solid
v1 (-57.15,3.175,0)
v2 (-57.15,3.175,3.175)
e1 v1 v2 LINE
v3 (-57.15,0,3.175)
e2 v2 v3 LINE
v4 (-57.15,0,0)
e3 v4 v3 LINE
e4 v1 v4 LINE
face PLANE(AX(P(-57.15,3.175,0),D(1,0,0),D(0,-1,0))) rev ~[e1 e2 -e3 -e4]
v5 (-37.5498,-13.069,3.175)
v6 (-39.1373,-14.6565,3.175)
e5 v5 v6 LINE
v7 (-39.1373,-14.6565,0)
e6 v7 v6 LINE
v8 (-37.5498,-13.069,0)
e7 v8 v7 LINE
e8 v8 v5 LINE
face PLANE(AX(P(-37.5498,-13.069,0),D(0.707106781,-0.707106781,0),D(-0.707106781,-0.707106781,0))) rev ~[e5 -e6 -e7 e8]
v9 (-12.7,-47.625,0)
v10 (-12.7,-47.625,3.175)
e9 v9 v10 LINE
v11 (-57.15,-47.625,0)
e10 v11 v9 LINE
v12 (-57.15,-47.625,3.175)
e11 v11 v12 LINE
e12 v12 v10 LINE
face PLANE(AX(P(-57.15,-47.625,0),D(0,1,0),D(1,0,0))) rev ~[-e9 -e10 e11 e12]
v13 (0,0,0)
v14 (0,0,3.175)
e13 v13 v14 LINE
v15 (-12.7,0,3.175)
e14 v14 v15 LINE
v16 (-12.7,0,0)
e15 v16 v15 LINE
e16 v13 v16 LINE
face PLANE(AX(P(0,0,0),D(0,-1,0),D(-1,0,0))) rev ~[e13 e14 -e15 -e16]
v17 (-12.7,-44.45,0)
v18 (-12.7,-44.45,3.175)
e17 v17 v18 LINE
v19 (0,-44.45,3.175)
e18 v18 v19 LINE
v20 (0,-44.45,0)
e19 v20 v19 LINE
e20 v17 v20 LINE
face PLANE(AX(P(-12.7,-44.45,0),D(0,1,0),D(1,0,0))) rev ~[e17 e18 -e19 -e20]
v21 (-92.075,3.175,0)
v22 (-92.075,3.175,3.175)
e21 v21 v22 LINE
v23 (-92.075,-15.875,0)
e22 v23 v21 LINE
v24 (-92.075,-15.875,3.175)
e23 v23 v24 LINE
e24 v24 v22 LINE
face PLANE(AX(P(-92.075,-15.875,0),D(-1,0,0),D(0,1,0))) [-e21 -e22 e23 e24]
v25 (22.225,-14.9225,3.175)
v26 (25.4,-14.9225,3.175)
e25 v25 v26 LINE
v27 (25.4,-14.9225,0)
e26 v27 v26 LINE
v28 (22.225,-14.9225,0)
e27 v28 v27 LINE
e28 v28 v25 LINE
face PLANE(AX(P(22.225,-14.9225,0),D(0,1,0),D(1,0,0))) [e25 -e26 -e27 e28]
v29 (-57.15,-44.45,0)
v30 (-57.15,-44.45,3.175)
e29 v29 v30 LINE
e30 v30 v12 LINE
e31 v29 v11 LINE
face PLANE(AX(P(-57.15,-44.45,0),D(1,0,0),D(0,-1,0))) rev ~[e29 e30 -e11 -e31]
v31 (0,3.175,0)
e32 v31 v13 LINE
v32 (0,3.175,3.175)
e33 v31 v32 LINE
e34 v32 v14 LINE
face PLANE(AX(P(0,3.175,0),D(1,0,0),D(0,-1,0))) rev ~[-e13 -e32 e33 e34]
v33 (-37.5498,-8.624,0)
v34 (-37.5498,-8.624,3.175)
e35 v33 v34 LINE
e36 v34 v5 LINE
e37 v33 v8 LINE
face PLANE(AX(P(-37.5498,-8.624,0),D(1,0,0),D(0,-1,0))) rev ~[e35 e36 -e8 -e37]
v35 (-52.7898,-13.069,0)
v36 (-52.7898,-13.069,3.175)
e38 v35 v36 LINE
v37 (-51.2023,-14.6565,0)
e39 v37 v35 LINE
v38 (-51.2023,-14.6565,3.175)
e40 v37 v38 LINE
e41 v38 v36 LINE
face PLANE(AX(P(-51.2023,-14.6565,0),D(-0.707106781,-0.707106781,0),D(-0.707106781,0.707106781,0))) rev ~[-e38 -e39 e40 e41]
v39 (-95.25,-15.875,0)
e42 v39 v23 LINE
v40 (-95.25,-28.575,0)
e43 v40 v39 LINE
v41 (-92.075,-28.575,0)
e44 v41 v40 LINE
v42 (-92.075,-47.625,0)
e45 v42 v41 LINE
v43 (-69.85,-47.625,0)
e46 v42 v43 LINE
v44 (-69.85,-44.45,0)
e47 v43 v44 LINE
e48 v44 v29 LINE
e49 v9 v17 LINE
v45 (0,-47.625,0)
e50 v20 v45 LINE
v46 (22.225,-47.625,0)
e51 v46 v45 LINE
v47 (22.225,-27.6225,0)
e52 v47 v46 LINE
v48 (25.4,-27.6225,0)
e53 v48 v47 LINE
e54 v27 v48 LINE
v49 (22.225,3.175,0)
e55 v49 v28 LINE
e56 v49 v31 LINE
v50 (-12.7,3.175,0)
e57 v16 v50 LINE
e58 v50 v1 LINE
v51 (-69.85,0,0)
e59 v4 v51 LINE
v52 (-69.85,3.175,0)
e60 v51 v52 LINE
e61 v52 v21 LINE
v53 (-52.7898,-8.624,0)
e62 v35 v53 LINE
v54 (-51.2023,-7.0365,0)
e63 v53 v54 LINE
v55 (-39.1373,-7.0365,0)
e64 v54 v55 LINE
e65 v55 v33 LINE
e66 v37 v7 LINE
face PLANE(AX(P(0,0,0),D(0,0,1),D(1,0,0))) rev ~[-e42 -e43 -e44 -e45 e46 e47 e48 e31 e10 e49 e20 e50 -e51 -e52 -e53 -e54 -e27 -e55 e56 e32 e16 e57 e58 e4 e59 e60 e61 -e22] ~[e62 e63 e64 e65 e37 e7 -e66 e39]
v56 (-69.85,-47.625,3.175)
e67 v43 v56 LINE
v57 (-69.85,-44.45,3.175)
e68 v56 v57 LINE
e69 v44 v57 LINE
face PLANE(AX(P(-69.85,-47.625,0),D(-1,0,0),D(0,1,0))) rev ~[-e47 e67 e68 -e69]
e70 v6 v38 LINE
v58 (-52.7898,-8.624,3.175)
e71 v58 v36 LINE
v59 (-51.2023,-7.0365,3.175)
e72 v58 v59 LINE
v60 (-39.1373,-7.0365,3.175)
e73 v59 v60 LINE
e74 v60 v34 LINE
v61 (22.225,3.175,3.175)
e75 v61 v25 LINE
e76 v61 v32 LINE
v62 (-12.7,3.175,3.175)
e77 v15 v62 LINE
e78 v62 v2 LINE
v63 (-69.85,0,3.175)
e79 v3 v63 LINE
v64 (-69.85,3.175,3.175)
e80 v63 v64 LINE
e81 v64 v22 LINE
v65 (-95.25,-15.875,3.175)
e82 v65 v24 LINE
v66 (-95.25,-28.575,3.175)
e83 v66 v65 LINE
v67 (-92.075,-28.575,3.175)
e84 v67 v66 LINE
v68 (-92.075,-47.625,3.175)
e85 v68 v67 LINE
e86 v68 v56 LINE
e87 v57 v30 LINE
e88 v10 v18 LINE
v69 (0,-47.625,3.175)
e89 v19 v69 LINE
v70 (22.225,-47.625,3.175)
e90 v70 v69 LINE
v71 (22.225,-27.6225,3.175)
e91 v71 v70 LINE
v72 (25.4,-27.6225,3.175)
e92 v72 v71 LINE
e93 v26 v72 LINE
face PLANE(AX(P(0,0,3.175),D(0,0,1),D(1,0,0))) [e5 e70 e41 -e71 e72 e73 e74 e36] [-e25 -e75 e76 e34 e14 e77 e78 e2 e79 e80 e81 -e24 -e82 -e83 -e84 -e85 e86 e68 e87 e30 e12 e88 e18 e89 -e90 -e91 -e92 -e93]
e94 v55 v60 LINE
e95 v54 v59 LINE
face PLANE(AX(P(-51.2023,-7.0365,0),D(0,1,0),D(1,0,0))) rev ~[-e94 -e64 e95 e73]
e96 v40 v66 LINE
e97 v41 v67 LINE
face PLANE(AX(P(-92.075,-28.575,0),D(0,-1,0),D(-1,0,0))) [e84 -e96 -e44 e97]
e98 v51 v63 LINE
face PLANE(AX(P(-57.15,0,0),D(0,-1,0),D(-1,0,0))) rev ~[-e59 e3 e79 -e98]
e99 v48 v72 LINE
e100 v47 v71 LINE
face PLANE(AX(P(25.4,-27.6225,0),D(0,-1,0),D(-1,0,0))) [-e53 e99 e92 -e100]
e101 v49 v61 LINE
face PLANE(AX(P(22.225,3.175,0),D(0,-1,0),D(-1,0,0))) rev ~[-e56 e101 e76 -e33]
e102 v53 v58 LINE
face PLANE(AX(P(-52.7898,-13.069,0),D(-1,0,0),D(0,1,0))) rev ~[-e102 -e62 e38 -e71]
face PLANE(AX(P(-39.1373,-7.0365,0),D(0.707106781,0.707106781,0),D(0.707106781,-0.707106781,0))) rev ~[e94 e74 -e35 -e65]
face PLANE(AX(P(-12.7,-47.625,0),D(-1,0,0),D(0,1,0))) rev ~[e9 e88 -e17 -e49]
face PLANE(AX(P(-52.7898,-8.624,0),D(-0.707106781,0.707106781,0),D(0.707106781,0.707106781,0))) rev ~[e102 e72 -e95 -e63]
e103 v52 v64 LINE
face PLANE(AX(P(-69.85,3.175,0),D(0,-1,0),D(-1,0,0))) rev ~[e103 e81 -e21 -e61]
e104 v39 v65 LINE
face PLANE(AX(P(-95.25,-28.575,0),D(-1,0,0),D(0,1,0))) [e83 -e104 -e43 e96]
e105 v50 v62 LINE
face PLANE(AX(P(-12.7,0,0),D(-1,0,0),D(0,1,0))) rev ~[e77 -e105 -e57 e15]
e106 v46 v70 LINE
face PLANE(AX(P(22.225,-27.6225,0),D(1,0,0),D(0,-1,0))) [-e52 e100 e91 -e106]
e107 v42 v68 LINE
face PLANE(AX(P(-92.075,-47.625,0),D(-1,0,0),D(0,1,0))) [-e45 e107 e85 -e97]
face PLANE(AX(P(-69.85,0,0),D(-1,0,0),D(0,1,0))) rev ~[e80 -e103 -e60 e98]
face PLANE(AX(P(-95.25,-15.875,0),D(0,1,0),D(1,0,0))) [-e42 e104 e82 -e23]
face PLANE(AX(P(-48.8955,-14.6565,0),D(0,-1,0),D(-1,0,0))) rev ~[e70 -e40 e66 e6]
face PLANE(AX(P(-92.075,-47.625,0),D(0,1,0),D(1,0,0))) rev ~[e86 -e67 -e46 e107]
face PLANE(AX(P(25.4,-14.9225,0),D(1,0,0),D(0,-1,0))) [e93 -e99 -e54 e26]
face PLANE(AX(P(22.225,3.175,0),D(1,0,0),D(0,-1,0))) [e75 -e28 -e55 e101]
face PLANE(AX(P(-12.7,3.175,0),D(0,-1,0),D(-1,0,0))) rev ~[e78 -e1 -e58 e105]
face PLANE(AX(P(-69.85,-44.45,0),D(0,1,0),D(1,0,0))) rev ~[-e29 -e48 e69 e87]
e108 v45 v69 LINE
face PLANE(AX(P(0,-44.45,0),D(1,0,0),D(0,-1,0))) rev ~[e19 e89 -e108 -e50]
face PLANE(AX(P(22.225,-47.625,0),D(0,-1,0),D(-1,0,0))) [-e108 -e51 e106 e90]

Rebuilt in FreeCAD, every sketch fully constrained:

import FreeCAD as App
import Part
import Sketcher
from FreeCAD import Vector
Q = App.Units.Quantity


def add_polygon(sketch, points):
    """Adds a closed chain of lines whose ends are joined by coincident constraints."""
    first, n = sketch.GeometryCount, len(points)
    for a, b in zip(points, points[1:] + points[:1]):
        sketch.addGeometry(Part.LineSegment(App.Vector(*a, 0), App.Vector(*b, 0)), False)
    for i in range(n):
        sketch.addConstraint(Sketcher.Constraint("Coincident", first + i, 2, first + (i + 1) % n, 1))

doc = App.newDocument("Part")
params = doc.addObject("Spreadsheet::Sheet", "Params")
for row, (alias, value) in enumerate([
    ("sketch1_width", "0.5 in"),
    ("sketch1_width2", "1.75 in"),
    ("sketch1_width3", "0.125 in"),
    ("sketch1_width4", "0.475 in"),
    ("pad1_length", "0.125 in"),
], start=1):
    params.set(f"A{row}", alias)
    params.set(f"B{row}", "=" + value)
    params.setAlias(f"B{row}", alias)

body = doc.addObject("PartDesign::Body", "Body")

sketch1 = body.newObject("Sketcher::SketchObject", "Sketch")
sketch1.AttachmentSupport = (doc.getObject("XY_Plane"), [""])
sketch1.MapMode = "FlatFace"
add_polygon(sketch1, [(-92.075, -15.875), (-95.25, -15.875), (-95.25, -28.575), (-92.075, -28.575), (-92.075, -47.625), (-69.85, -47.625), (-69.85, -44.45), (-57.15, -44.45), (-57.15, -47.625), (-12.7, -47.625), (-12.7, -44.45), (0, -44.45), (0, -47.625), (22.225, -47.625), (22.225, -27.6225), (25.4, -27.6225), (25.4, -14.9225), (22.225, -14.9225), (22.225, 3.175), (0, 3.175), (0, 0), (-12.7, 0), (-12.7, 3.175), (-57.15, 3.175), (-57.15, 0), (-69.85, 0), (-69.85, 3.175), (-92.075, 3.175)])
add_polygon(sketch1, [(-52.7898, -13.069), (-52.7898, -8.624), (-51.2023, -7.0365), (-39.1373, -7.0365), (-37.5498, -8.624), (-37.5498, -13.069), (-39.1373, -14.6565), (-51.2023, -14.6565)])
sketch1.addConstraint([
    Sketcher.Constraint("Horizontal", 0),
    Sketcher.Constraint("Vertical", 1),
    Sketcher.Constraint("Horizontal", 2),
    Sketcher.Constraint("Vertical", 3),
    Sketcher.Constraint("Horizontal", 4),
    Sketcher.Constraint("Vertical", 5),
    Sketcher.Constraint("Horizontal", 6),
    Sketcher.Constraint("Vertical", 7),
    Sketcher.Constraint("Horizontal", 8),
    Sketcher.Constraint("Vertical", 9),
    Sketcher.Constraint("Horizontal", 10),
    Sketcher.Constraint("Vertical", 11),
    Sketcher.Constraint("Horizontal", 12),
    Sketcher.Constraint("Vertical", 13),
    Sketcher.Constraint("Horizontal", 14),
    Sketcher.Constraint("Vertical", 15),
    Sketcher.Constraint("Horizontal", 16),
    Sketcher.Constraint("Vertical", 17),
    Sketcher.Constraint("Horizontal", 18),
    Sketcher.Constraint("Vertical", 19),
    Sketcher.Constraint("Horizontal", 20),
    Sketcher.Constraint("Vertical", 21),
    Sketcher.Constraint("Horizontal", 22),
    Sketcher.Constraint("Vertical", 23),
    Sketcher.Constraint("Horizontal", 24),
    Sketcher.Constraint("Vertical", 25),
    Sketcher.Constraint("Horizontal", 26),
    Sketcher.Constraint("Vertical", 27),
    Sketcher.Constraint("Vertical", 28),
    Sketcher.Constraint("Horizontal", 30),
    Sketcher.Constraint("Vertical", 32),
    Sketcher.Constraint("Horizontal", 34),
    Sketcher.Constraint("Coincident", 19, 2, -1, 1),
    Sketcher.Constraint("PointOnObject", 10, 2, -2),
    Sketcher.Constraint("PointOnObject", 23, 2, -1),
    Sketcher.Constraint("Perpendicular", 29, 31),
    Sketcher.Constraint("Perpendicular", 31, 33),
    Sketcher.Constraint("Perpendicular", 33, 35),
    Sketcher.Constraint("Horizontal", 4, 2, 7, 2),
    Sketcher.Constraint("Horizontal", 6, 2, 9, 2),
    Sketcher.Constraint("Horizontal", 8, 2, 11, 2),
    Sketcher.Constraint("Horizontal", 18, 2, 21, 2),
    Sketcher.Constraint("Horizontal", 22, 2, 25, 2),
    Sketcher.Constraint("Horizontal", 28, 2, 31, 2),
    Sketcher.Constraint("Horizontal", 32, 2, 35, 2),
    Sketcher.Constraint("Vertical", 13, 2, 16, 2),
    Sketcher.Constraint("Vertical", 9, 2, 20, 2),
    Sketcher.Constraint("Vertical", 7, 2, 22, 2),
    Sketcher.Constraint("Vertical", 5, 2, 24, 2),
    Sketcher.Constraint("Vertical", 3, 2, 26, 2),
    Sketcher.Constraint("Vertical", 30, 2, 33, 2),
    Sketcher.Constraint("Vertical", 29, 2, 34, 2),
    Sketcher.Constraint("Equal", 6, 10),
    Sketcher.Constraint("Equal", 4, 12),
    Sketcher.Constraint("Equal", 2, 14),
    Sketcher.Constraint("Equal", 24, 1),
    Sketcher.Constraint("Equal", 16, 5),
    Sketcher.Constraint("Equal", 1, 15),
    Sketcher.Constraint("Equal", 11, 19),
    Sketcher.Constraint("Equal", 3, 27),
    Sketcher.Constraint("DistanceX", 6, 1, 6, 2, Q("0.5 in")),
    Sketcher.Constraint("DistanceX", -1, 1, 14, 2, Q("1 in")),
    Sketcher.Constraint("DistanceY", 12, 2, 17, 2, Q("2 in")),
    Sketcher.Constraint("DistanceX", 8, 1, 8, 2, Q("1.75 in")),
    Sketcher.Constraint("DistanceX", 28, 2, 31, 2, Q("0.6 in")),
    Sketcher.Constraint("DistanceY", 33, 2, 30, 2, Q("0.3 in")),
    Sketcher.Constraint("DistanceX", 0, 2, 0, 1, Q("0.125 in")),
    Sketcher.Constraint("DistanceX", 30, 1, 30, 2, Q("0.475 in")),
    Sketcher.Constraint("DistanceY", 13, 1, 13, 2, Q("0.7875 in")),
    Sketcher.Constraint("DistanceX", 28, 2, -1, 1, 52.7898),
    Sketcher.Constraint("DistanceY", 28, 2, -1, 1, 8.624),
])
sketch1.setExpression("Constraints[96]", "Params.sketch1_width")
sketch1.setExpression("Constraints[99]", "Params.sketch1_width2")
sketch1.setExpression("Constraints[102]", "Params.sketch1_width3")
sketch1.setExpression("Constraints[103]", "Params.sketch1_width4")
pad1 = body.newObject("PartDesign::Pad", "Pad")
pad1.Profile = sketch1
pad1.setExpression("Length", "Params.pad1_length")

doc.recompute()
